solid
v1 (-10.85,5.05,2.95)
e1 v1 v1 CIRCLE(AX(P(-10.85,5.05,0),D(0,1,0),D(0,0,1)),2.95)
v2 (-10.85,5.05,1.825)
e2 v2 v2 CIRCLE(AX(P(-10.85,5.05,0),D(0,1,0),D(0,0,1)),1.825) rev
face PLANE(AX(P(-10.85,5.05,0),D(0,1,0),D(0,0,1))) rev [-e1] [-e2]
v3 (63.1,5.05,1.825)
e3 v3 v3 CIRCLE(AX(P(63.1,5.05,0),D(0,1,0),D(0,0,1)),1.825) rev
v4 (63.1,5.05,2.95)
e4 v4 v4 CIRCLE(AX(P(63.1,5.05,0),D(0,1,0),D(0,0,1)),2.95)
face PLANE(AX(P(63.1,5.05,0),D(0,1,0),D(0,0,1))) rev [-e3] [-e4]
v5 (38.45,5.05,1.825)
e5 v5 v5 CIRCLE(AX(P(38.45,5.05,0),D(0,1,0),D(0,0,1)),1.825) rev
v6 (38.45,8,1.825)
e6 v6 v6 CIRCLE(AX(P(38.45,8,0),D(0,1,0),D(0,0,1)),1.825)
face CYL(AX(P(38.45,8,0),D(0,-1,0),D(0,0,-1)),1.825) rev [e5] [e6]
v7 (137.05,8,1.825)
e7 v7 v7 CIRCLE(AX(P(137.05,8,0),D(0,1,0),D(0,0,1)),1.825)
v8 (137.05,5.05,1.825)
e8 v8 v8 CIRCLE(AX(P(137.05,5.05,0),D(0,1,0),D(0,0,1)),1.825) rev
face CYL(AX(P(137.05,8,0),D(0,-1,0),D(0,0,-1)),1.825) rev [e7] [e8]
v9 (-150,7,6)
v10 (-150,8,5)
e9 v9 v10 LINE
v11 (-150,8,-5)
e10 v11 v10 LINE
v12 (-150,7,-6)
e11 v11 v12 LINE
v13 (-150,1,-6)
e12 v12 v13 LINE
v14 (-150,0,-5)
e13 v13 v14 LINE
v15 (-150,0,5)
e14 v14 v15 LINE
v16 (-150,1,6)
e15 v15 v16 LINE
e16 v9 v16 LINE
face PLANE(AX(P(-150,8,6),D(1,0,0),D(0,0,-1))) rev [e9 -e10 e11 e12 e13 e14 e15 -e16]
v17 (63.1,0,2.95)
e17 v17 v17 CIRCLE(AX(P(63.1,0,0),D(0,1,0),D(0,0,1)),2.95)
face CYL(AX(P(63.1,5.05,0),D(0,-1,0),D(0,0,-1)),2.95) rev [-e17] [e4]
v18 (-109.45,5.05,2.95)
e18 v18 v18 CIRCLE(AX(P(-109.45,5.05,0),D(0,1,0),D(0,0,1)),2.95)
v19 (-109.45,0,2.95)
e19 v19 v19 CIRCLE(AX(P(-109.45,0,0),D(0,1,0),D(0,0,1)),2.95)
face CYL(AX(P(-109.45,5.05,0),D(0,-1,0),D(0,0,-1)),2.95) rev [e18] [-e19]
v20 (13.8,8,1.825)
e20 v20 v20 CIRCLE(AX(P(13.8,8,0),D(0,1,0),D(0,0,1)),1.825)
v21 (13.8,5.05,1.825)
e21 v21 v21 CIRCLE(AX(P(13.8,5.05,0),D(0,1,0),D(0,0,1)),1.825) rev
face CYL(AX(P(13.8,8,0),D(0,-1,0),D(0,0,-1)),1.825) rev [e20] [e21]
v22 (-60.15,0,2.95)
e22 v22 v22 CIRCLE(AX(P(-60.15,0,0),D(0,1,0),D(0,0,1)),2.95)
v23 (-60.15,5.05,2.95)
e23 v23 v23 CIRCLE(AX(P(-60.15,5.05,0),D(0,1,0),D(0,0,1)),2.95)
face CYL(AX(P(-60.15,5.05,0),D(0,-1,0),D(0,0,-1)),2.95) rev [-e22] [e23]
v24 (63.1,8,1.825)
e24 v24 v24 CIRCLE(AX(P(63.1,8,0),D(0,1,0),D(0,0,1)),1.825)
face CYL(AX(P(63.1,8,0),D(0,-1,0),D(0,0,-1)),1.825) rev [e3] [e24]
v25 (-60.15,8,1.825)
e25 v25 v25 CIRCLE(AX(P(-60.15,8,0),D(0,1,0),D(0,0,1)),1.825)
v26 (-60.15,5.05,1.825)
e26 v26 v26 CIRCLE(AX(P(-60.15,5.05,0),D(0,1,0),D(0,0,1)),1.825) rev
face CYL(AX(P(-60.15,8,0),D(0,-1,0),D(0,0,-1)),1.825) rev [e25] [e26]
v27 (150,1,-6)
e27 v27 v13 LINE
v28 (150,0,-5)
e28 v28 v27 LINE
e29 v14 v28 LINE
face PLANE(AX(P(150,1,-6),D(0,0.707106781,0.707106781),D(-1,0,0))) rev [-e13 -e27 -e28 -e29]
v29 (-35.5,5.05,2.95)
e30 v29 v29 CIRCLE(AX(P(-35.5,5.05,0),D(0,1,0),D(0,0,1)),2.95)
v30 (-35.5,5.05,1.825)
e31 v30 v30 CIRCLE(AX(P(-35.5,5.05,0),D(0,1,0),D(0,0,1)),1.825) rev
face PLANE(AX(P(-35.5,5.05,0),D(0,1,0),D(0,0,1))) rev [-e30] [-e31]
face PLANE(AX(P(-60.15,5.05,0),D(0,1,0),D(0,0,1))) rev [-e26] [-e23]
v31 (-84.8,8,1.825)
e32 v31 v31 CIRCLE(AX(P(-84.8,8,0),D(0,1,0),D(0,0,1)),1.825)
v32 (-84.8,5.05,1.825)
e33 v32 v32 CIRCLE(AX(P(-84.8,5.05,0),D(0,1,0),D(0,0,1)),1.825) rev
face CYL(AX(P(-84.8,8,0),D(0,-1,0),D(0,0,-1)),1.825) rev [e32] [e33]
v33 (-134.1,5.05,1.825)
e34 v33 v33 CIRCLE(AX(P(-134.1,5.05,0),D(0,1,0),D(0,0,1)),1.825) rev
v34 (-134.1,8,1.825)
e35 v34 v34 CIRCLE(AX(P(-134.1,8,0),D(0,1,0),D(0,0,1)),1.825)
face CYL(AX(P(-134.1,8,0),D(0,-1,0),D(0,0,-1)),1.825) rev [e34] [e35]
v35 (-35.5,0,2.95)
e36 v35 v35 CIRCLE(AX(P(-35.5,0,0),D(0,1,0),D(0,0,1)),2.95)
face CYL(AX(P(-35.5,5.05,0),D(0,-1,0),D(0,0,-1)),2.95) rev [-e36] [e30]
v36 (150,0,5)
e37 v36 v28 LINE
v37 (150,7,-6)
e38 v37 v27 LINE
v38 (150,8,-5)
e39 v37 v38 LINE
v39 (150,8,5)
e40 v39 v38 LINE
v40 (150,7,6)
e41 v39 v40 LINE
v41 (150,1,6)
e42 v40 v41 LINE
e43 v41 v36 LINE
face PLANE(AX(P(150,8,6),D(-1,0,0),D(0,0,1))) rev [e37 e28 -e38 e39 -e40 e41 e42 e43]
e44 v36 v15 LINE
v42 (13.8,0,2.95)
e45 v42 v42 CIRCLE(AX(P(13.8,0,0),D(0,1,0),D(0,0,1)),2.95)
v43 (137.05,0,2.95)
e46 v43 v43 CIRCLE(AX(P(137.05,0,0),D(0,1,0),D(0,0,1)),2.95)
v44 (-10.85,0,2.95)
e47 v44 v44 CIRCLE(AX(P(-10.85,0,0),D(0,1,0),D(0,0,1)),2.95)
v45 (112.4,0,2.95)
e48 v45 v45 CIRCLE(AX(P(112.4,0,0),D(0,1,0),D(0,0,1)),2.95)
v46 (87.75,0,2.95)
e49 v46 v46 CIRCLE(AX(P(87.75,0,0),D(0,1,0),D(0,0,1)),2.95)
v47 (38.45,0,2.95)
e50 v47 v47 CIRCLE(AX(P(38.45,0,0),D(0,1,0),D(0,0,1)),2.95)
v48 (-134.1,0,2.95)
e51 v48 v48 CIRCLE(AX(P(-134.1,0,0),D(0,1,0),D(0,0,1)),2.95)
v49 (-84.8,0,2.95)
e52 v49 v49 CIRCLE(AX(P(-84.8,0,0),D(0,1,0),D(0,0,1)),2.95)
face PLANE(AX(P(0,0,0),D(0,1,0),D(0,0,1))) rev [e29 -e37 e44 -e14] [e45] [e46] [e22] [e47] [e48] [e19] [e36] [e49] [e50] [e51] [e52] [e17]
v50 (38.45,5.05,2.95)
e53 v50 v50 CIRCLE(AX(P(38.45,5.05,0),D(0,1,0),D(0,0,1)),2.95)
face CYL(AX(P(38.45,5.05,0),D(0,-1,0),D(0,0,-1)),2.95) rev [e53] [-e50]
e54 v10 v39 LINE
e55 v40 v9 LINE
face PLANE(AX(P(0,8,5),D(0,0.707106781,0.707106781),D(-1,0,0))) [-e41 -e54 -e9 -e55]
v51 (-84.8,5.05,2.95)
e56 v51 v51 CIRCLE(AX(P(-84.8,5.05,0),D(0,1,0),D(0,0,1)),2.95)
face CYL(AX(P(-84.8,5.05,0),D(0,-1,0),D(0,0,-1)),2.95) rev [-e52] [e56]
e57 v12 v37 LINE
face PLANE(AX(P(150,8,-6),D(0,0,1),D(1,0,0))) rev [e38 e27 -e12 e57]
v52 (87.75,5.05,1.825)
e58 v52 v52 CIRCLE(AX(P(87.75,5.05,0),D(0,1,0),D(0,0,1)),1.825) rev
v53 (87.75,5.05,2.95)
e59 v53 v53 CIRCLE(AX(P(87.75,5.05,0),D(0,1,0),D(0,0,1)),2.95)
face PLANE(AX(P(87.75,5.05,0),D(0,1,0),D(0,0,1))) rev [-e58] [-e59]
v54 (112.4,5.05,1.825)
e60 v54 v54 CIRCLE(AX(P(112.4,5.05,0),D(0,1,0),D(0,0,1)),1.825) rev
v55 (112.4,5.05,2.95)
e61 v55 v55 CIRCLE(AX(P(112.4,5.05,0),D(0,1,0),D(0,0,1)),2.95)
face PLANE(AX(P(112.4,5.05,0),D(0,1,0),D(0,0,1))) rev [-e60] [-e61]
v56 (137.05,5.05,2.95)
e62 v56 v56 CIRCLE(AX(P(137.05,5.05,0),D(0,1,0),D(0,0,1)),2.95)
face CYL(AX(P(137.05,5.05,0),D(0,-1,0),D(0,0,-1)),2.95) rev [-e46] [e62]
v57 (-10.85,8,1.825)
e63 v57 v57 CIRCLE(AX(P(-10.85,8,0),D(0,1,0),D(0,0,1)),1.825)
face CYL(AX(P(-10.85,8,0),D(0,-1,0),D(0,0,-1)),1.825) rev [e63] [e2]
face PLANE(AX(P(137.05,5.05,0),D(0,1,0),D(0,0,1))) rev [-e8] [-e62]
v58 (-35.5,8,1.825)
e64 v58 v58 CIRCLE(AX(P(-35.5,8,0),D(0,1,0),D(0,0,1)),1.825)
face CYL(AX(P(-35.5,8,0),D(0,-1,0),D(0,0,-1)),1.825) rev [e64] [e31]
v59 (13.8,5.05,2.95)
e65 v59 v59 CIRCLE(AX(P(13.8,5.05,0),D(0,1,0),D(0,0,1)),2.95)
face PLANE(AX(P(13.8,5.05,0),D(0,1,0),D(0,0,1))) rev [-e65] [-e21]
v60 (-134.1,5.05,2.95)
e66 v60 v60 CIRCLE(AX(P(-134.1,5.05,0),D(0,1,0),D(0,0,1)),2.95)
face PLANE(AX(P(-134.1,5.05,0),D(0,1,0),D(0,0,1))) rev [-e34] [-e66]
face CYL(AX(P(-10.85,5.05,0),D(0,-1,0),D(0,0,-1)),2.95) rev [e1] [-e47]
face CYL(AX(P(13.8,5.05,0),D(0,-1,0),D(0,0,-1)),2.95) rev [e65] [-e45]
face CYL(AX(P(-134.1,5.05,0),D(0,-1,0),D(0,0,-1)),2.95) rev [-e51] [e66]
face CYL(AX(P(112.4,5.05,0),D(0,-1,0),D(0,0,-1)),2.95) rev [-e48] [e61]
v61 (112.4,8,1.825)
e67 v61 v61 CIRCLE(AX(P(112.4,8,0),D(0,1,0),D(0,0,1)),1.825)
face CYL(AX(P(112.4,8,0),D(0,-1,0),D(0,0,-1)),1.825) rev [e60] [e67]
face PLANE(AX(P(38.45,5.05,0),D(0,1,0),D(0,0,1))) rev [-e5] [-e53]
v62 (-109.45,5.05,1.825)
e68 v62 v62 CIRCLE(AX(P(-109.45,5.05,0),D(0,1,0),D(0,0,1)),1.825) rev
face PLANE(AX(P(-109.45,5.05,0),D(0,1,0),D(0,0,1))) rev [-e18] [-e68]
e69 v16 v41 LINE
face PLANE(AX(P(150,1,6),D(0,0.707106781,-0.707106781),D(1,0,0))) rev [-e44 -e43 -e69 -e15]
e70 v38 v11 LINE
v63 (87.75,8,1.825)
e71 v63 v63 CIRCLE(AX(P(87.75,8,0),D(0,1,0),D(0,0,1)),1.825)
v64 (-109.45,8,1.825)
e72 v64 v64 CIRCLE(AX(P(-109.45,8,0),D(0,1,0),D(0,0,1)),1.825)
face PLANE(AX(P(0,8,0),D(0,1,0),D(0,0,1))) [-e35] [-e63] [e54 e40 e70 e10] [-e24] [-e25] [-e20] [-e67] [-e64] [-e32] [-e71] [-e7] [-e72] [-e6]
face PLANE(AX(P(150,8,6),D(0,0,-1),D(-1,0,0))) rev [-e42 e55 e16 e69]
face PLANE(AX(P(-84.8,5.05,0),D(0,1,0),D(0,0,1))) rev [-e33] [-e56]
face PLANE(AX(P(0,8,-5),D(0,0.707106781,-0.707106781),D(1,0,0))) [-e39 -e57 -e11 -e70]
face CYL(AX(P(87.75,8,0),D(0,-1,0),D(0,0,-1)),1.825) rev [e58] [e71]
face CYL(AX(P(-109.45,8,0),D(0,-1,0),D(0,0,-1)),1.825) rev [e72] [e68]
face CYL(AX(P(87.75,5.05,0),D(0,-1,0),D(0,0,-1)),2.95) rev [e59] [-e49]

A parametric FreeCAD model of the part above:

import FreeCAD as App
import Part
import Sketcher

V = App.Vector
Q = App.Units.Quantity


def edges_at(feature, points):
    """Names of the edges that pass closest to the given points."""
    edges = feature.Shape.Edges
    near = lambda p: min(range(len(edges)), key=lambda i: edges[i].distToShape(Part.Vertex(*p))[0])
    return sorted({f"Edge{near(p) + 1}" for p in points})


def add_polygon(sketch, points):
    """Adds a closed chain of lines whose ends are joined by coincident constraints."""
    first, n = sketch.GeometryCount, len(points)
    for a, b in zip(points, points[1:] + points[:1]):
        sketch.addGeometry(Part.LineSegment(App.Vector(*a, 0), App.Vector(*b, 0)), False)
    for i in range(n):
        sketch.addConstraint(Sketcher.Constraint("Coincident", first + i, 2, first + (i + 1) % n, 1))

doc = App.newDocument("Part")
body = doc.addObject("PartDesign::Body", "Body")

# Sketch on XZ plane
sketch1 = body.newObject("Sketcher::SketchObject", "Sketch")
sketch1.AttachmentSupport = (doc.getObject("XZ_Plane"), [""])
sketch1.MapMode = "FlatFace"
add_polygon(sketch1, [(-150, -6), (-150, 6), (150, 6), (150, -6)])  # lines 0-3
sketch1.addConstraint(Sketcher.Constraint("Vertical", 0))
sketch1.addConstraint(Sketcher.Constraint("Horizontal", 1))
sketch1.addConstraint(Sketcher.Constraint("Vertical", 2))
sketch1.addConstraint(Sketcher.Constraint("Horizontal", 3))
sketch1.addConstraint(Sketcher.Constraint("Symmetric", 0, 2, 2, 2, -1, 1))
sketch1.addConstraint(Sketcher.Constraint("DistanceX", 1, 1, 1, 2, Q("300 mm")))
sketch1.addConstraint(Sketcher.Constraint("DistanceY", 0, 1, 0, 2, Q("12 mm")))
pad1 = body.newObject("PartDesign::Pad", "Pad")
pad1.Profile = sketch1
pad1.Length = 8
pad1.Reversed = True
doc.recompute()

chamfer = body.newObject("PartDesign::Chamfer", "Chamfer")
chamfer.Base = (pad1, edges_at(pad1, [
    (0, 8, -6),
    (0, 0, -6),
    (0, 0, 6),
    (0, 8, 6),
]))
chamfer.Size = 1

# Sketch on XZ plane
sketch2 = body.newObject("Sketcher::SketchObject", "Sketch001")
sketch2.AttachmentSupport = (doc.getObject("XZ_Plane"), [""])
sketch2.MapMode = "FlatFace"
sketch2.addGeometry(Part.Circle(V(137.1, 0, 0), V(0, 0, 1), 3), False)
sketch2.addConstraint(Sketcher.Constraint("PointOnObject", 0, 3, -1))
sketch2.addConstraint(Sketcher.Constraint("Diameter", 0, Q("5.9 mm")))
sketch2.addConstraint(Sketcher.Constraint("DistanceX", -1, 1, 0, 3, Q("137.05 mm")))
pocket1 = body.newObject("PartDesign::Pocket", "Pocket")
pocket1.Profile = sketch2
pocket1.Length = 5.05

# Sketch on XZ plane
sketch3 = body.newObject("Sketcher::SketchObject", "Sketch002")
sketch3.AttachmentSupport = (doc.getObject("XZ_Plane"), [""])
sketch3.MapMode = "FlatFace"
sketch3.addGeometry(Part.Circle(V(137.1, 0, 0), V(0, 0, 1), 1.8), False)
sketch3.addConstraint(Sketcher.Constraint("PointOnObject", 0, 3, -1))
sketch3.addConstraint(Sketcher.Constraint("Diameter", 0, Q("3.65 mm")))
sketch3.addConstraint(Sketcher.Constraint("DistanceX", -1, 1, 0, 3, Q("137.05 mm")))
pocket2 = body.newObject("PartDesign::Pocket", "Pocket001")
pocket2.Profile = sketch3
pocket2.Type = "ThroughAll"
doc.recompute()

linearpattern = body.newObject("PartDesign::LinearPattern", "LinearPattern")
linearpattern.Originals = [pocket1, pocket2]
linearpattern.Direction = (doc.getObject("X_Axis"), [""])
linearpattern.Mode = "offset"
linearpattern.Offset = 24.65
linearpattern.Occurrences = 12
linearpattern.Reversed = True
body.Tip = linearpattern

doc.recompute()
